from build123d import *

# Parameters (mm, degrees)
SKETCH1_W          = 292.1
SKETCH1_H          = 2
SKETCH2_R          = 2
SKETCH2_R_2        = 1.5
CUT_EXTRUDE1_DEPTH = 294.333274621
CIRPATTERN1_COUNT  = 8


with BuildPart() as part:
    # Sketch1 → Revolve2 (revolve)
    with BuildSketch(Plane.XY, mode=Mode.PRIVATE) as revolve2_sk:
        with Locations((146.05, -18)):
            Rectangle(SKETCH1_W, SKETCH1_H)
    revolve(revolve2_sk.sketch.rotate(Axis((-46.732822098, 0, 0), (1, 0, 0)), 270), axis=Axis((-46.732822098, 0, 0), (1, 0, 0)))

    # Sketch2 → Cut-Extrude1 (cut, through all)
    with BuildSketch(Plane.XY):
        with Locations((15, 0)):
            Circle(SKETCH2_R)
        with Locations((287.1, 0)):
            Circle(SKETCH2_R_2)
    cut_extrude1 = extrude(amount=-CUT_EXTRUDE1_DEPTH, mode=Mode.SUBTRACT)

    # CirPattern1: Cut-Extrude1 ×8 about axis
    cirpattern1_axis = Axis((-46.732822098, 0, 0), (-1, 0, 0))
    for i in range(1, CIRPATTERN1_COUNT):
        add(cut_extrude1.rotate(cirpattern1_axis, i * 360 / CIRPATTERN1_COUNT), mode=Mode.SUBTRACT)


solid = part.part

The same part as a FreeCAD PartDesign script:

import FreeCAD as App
import Part
import Sketcher

V = App.Vector


def add_polygon(sketch, points):
    """Adds a closed chain of lines whose ends are joined by coincident constraints."""
    first, n = sketch.GeometryCount, len(points)
    for a, b in zip(points, points[1:] + points[:1]):
        sketch.addGeometry(Part.LineSegment(App.Vector(*a, 0), App.Vector(*b, 0)), False)
    for i in range(n):
        sketch.addConstraint(Sketcher.Constraint("Coincident", first + i, 2, first + (i + 1) % n, 1))

doc = App.newDocument("Part")
body = doc.addObject("PartDesign::Body", "Body")

# Sketch on XY plane
sketch1 = doc.addObject("Sketcher::SketchObject", "Sketch")
body.addObject(sketch1)
sketch1.AttachmentSupport = (doc.XY_Plane, [""])
sketch1.MapMode = "FlatFace"
add_polygon(sketch1, [(0, -17), (0, -19), (292.1, -19), (292.1, -17)])  # lines 0-3
sketch1.addConstraint([
    Sketcher.Constraint("Vertical", 0),
    Sketcher.Constraint("Horizontal", 1),
    Sketcher.Constraint("Vertical", 2),
    Sketcher.Constraint("Horizontal", 3),
    Sketcher.Constraint("PointOnObject", 0, 2, -2),
    Sketcher.Constraint("DistanceY", 0, 2, 0, 1, 2.0),
    Sketcher.Constraint("DistanceX", 1, 1, 1, 2, 292.1),
    Sketcher.Constraint("DistanceY", 0, 2, -1, 1, 19.0),
])
revolution = doc.addObject("PartDesign::Revolution", "Revolution")
body.addObject(revolution)
revolution.Profile = sketch1
revolution.ReferenceAxis = (sketch1, ["H_Axis"])
revolution.Angle = 360

# Sketch on XY plane
sketch2 = doc.addObject("Sketcher::SketchObject", "Sketch001")
body.addObject(sketch2)
sketch2.AttachmentSupport = (doc.XY_Plane, [""])
sketch2.MapMode = "FlatFace"
sketch2.addGeometry([
    Part.Circle(V(15, 0, 0), V(0, 0, 1), 2),
    Part.Circle(V(287.1, 0, 0), V(0, 0, 1), 1.5),
], False)
sketch2.addConstraint([
    Sketcher.Constraint("PointOnObject", 0, 3, -1),
    Sketcher.Constraint("PointOnObject", 1, 3, -1),
    Sketcher.Constraint("Diameter", 0, 4.0),
    Sketcher.Constraint("Diameter", 1, 3.0),
    Sketcher.Constraint("DistanceX", -1, 1, 0, 3, 15.0),
    Sketcher.Constraint("DistanceX", -1, 1, 1, 3, 287.1),
])
pocket1 = doc.addObject("PartDesign::Pocket", "Pocket")
body.addObject(pocket1)
pocket1.Profile = sketch2
pocket1.Type = "ThroughAll"
doc.recompute()

polarpattern = doc.addObject("PartDesign::PolarPattern", "PolarPattern")
body.addObject(polarpattern)
polarpattern.Originals = [pocket1]
polarpattern.Axis = (doc.X_Axis, [""])
polarpattern.Angle = 360
polarpattern.Occurrences = 8
body.Tip = polarpattern

doc.recompute()
